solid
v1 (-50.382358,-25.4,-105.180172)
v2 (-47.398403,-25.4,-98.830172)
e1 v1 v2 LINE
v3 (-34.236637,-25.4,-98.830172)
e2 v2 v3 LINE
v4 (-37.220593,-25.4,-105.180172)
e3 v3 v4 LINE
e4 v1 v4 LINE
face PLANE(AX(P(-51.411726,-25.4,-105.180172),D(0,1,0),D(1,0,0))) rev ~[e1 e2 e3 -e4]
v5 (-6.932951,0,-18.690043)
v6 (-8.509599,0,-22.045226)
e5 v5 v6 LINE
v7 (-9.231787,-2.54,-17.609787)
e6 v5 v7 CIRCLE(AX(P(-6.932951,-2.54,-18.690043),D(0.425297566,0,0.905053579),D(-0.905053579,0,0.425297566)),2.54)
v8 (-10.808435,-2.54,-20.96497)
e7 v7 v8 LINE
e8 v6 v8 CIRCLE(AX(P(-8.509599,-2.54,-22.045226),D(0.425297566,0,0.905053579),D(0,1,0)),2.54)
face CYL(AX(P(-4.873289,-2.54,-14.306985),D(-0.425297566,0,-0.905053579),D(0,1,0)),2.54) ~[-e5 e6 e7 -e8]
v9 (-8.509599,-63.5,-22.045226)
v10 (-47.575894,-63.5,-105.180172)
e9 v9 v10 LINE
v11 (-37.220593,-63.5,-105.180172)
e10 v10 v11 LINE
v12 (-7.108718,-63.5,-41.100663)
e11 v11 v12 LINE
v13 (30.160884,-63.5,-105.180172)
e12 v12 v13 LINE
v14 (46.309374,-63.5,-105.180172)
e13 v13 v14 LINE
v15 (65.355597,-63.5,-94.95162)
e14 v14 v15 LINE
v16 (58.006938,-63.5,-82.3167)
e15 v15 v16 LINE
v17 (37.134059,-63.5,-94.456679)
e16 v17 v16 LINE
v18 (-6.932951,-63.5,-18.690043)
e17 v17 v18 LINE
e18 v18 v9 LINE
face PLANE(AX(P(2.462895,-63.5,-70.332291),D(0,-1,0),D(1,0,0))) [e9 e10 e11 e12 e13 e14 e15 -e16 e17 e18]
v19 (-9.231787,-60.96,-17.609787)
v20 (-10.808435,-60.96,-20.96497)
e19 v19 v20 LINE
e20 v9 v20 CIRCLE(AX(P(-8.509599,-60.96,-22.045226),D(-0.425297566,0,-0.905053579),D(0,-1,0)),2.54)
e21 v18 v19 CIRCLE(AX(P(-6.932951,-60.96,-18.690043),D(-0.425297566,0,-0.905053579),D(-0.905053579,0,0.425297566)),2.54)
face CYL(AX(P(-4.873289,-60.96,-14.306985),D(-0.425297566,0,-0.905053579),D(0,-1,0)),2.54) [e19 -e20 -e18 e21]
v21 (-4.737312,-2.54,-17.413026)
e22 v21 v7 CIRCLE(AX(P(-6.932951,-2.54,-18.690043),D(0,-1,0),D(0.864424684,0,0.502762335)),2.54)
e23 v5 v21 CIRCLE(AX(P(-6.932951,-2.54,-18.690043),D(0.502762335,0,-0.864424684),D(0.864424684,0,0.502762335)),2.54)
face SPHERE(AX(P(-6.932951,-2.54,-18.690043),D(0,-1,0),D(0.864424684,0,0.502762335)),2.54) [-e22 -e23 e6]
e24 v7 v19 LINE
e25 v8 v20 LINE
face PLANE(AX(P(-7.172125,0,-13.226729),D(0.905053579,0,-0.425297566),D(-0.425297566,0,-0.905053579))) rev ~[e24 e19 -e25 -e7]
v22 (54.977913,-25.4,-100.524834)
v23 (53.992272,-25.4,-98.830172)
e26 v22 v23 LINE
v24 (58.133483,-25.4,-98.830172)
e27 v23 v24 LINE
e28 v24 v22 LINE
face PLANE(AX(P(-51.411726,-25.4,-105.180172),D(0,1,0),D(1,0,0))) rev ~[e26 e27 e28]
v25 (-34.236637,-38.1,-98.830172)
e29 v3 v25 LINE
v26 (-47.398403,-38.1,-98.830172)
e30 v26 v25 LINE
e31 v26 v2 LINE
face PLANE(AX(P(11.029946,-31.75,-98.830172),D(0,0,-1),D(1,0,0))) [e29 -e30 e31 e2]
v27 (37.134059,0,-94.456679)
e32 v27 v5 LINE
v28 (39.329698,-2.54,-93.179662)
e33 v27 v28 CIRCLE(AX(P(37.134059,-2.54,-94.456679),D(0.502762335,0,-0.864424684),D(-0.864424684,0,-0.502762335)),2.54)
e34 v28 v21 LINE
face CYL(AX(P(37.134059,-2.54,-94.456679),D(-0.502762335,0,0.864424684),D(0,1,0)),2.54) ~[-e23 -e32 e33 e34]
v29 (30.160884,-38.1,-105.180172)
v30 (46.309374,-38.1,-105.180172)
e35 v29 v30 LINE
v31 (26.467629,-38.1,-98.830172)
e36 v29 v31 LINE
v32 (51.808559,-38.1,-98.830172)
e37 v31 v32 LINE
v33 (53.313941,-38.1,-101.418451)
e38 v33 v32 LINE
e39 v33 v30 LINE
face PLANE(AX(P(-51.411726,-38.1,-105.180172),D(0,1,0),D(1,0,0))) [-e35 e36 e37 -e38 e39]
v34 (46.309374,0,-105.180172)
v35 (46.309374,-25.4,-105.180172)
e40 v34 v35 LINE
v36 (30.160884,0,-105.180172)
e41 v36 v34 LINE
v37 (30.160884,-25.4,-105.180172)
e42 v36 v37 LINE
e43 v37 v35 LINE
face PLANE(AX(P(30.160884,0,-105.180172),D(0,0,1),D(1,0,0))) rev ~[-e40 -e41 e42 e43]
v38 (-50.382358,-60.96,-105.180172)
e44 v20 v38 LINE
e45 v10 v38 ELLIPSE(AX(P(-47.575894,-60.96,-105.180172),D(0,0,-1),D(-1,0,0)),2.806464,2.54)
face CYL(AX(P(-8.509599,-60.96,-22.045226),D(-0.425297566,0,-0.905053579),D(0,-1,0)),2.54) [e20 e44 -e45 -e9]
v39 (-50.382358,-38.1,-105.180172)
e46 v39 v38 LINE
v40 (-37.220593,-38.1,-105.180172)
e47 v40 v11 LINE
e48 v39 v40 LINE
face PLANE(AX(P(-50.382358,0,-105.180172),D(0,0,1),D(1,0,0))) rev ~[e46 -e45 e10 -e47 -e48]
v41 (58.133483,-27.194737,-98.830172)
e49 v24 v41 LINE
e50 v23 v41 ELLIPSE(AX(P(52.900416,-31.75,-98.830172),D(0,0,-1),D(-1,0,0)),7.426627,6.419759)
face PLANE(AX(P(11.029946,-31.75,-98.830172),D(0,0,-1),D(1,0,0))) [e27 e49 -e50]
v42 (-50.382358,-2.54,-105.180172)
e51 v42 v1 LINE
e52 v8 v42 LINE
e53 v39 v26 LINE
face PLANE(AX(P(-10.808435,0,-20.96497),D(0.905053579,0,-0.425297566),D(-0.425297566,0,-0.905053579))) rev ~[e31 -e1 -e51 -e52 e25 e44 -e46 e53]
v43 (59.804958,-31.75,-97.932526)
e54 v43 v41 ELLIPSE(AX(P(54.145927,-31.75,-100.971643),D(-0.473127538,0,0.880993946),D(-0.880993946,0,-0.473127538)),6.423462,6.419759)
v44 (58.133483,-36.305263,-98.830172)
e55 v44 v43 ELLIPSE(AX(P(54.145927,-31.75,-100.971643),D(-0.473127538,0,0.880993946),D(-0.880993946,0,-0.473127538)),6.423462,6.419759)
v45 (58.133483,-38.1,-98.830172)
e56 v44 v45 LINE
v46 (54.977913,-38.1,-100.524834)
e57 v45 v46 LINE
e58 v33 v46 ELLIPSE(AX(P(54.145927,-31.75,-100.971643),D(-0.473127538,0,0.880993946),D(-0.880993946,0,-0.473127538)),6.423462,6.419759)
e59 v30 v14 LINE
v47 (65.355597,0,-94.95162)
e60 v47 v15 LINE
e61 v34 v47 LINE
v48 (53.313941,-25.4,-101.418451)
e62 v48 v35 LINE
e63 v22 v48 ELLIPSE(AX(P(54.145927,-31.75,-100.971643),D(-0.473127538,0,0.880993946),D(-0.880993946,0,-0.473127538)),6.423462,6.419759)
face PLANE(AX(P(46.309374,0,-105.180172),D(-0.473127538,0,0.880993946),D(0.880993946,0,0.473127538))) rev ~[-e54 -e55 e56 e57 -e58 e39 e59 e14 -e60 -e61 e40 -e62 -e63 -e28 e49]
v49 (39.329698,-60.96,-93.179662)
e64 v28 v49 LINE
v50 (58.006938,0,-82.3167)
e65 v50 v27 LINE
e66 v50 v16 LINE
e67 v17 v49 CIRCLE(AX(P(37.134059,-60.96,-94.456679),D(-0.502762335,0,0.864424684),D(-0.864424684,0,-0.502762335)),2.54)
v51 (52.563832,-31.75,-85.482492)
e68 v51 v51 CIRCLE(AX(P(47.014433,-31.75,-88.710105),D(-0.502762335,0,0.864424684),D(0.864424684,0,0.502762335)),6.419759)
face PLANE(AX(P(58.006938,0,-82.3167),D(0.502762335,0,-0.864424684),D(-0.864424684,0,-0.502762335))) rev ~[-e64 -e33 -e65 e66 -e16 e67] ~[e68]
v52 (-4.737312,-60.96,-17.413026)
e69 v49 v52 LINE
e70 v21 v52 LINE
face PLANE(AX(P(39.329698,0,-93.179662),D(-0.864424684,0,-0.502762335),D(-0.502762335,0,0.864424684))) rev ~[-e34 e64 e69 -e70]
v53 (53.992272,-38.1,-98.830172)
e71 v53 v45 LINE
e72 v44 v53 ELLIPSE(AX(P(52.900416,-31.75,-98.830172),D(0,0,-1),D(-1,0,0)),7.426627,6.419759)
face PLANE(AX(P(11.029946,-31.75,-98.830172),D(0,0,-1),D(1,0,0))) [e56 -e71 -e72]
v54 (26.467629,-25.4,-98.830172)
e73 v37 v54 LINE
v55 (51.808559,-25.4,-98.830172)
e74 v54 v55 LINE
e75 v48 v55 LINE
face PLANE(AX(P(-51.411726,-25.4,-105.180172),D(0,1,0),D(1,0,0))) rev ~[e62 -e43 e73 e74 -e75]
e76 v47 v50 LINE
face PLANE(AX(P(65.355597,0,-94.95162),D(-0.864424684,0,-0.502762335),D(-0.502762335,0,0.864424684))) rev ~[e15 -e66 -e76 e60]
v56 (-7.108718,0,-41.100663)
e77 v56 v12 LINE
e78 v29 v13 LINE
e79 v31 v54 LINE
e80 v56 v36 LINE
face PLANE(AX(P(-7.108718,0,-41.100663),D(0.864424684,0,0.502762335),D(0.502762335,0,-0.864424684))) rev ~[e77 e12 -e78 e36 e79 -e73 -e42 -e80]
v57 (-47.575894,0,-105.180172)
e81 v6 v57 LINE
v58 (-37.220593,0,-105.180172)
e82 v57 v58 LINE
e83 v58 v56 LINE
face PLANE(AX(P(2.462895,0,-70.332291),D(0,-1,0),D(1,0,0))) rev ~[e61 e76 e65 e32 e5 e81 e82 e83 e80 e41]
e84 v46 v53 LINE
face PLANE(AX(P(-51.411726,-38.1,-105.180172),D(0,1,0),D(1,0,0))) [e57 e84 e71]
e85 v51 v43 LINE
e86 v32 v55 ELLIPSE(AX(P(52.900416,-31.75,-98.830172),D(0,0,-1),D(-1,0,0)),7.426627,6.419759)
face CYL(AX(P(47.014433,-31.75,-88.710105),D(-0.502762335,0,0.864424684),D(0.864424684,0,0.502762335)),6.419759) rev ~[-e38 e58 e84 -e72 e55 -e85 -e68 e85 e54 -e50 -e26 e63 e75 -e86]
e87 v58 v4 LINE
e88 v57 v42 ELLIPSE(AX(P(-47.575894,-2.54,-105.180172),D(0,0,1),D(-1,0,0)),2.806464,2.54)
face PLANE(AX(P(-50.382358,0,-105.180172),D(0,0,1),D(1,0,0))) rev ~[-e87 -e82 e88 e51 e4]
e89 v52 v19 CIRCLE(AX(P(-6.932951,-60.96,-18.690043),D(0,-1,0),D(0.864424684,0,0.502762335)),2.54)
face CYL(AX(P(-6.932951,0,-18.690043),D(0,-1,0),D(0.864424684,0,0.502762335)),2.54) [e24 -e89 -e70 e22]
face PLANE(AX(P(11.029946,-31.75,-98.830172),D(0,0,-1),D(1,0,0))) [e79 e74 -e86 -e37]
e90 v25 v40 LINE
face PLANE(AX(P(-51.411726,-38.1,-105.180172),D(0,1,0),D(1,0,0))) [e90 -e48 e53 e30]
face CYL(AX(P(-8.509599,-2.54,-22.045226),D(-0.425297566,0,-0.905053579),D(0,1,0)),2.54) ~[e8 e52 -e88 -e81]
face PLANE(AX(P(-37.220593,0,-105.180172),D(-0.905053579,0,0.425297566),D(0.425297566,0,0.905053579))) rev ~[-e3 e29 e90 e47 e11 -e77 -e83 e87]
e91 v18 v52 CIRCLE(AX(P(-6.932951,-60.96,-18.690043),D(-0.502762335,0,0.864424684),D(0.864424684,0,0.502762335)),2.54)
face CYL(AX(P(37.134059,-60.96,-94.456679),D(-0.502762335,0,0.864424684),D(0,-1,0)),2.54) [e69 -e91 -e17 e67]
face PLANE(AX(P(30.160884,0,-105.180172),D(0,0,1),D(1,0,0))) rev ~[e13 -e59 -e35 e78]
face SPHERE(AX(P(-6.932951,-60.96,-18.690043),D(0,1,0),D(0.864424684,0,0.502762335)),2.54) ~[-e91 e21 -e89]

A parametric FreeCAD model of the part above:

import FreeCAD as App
import Part
import Sketcher
Q = App.Units.Quantity


def edges_at(feature, points):
    """Names of the edges that pass closest to the given points."""
    edges = feature.Shape.Edges
    near = lambda p: min(range(len(edges)), key=lambda i: edges[i].distToShape(Part.Vertex(*p))[0])
    return sorted({f"Edge{near(p) + 1}" for p in points})


def add_polygon(sketch, points):
    """Adds a closed chain of lines whose ends are joined by coincident constraints."""
    first, n = sketch.GeometryCount, len(points)
    for a, b in zip(points, points[1:] + points[:1]):
        sketch.addGeometry(Part.LineSegment(App.Vector(*a, 0), App.Vector(*b, 0)), False)
    for i in range(n):
        sketch.addConstraint(Sketcher.Constraint("Coincident", first + i, 2, first + (i + 1) % n, 1))

doc = App.newDocument("Part")
params = doc.addObject("Spreadsheet::Sheet", "Params")
for row, (alias, value) in enumerate([
    ("pad1_length", "2.5 in"),
    ("sketch3_height", "0.5 in"),
    ("pocket2_length", "0.25 in"),
    ("fillet_radius", "0.1 in"),
], start=1):
    params.set(f"A{row}", alias)
    params.set(f"B{row}", "=" + value)
    params.setAlias(f"B{row}", alias)

body = doc.addObject("PartDesign::Body", "Body")

# Sketch on XZ plane
sketch1 = doc.addObject("Sketcher::SketchObject", "Sketch")
body.addObject(sketch1)
sketch1.AttachmentSupport = (doc.XZ_Plane, [""])
sketch1.MapMode = "FlatFace"
add_polygon(sketch1, [(58, -82), (39, -93), (-7, -13), (-11, -21), (-50, -105), (-37, -105), (-7, -41), (30, -105), (46, -105), (65, -95)])  # lines 0-9
sketch1.addConstraint(Sketcher.Constraint("Horizontal", 4))
sketch1.addConstraint(Sketcher.Constraint("Horizontal", 7))
sketch1.addConstraint(Sketcher.Constraint("Perpendicular", 0, 1))
sketch1.addConstraint(Sketcher.Constraint("Parallel", 2, 3))
sketch1.addConstraint(Sketcher.Constraint("Parallel", 3, 5))
sketch1.addConstraint(Sketcher.Constraint("Parallel", 1, 6))
sketch1.addConstraint(Sketcher.Constraint("Parallel", 6, 9))
sketch1.addConstraint(Sketcher.Constraint("Horizontal", 4, 2, 6, 2))
sketch1.addConstraint(Sketcher.Constraint("DistanceX", 7, 1, 7, 2, 16.14849))
sketch1.addConstraint(Sketcher.Constraint("DistanceY", 9, 2, -1, 1, 82.3167))
sketch1.addConstraint(Sketcher.Constraint("DistanceY", 0, 2, 5, 2, 52.079))
sketch1.addConstraint(Sketcher.Constraint("DistanceX", 0, 2, 8, 2, 26.025899))
sketch1.addConstraint(Sketcher.Constraint("DistanceX", 4, 1, 4, 2, 13.161765))
sketch1.addConstraint(Sketcher.Constraint("DistanceY", 1, 2, -1, 1, 13.226729))
sketch1.addConstraint(Sketcher.Constraint("DistanceY", 2, 2, -1, 1, 20.96497))
sketch1.addConstraint(Sketcher.Constraint("DistanceX", 5, 2, -1, 1, 7.108718))
sketch1.addConstraint(Sketcher.Constraint("DistanceY", 8, 2, -1, 1, 94.95162))
sketch1.addConstraint(Sketcher.Constraint("DistanceX", -1, 1, 9, 2, 58.006938))
sketch1.addConstraint(Sketcher.Constraint("DistanceX", 2, 2, 1, 2, 3.63631))
sketch1.addConstraint(Sketcher.Constraint("DistanceY", 3, 2, 0, 2, 12.00051))
pad1 = doc.addObject("PartDesign::Pad", "Pad")
body.addObject(pad1)
pad1.Profile = sketch1
pad1.setExpression("Length", "Params.pad1_length")

# Sketch on an angled plane
sketch2 = doc.addObject("Sketcher::SketchObject", "Sketch001")
body.addObject(sketch2)
sketch2.Placement = App.Placement(App.Vector(50.437264, 0, -86.719336), App.Rotation(App.Vector(0.864424684, 0, 0.502762335), App.Vector(0, 1, 0), App.Vector(-0.502762335, 0, 0.864424684), "ZXY"))
sketch2.addGeometry(Part.Circle(App.Vector(-4, -32, 0), App.Vector(0, 0, 1), 6), False)
sketch2.addConstraint(Sketcher.Constraint("DistanceY", 0, 3, -1, 1, Q("1.25 in")))
sketch2.addConstraint(Sketcher.Constraint("Diameter", 0, 12.839519))
sketch2.addConstraint(Sketcher.Constraint("DistanceX", 0, 3, -1, 1, 3.959663))
pocket1 = doc.addObject("PartDesign::Pocket", "Pocket")
body.addObject(pocket1)
pocket1.Profile = sketch2
pocket1.Type = "ThroughAll"

# Sketch on XY plane
sketch3 = doc.addObject("Sketcher::SketchObject", "Sketch002")
body.addObject(sketch3)
sketch3.AttachmentSupport = (doc.XY_Plane, [""])
sketch3.MapMode = "FlatFace"
sketch3.AttachmentOffset = App.Placement(App.Vector(0, 0, -105.180172), App.Rotation())
add_polygon(sketch3, [(-51, -38), (-51, -25), (73, -25), (73, -38)])  # lines 0-3
sketch3.addConstraint(Sketcher.Constraint("Vertical", 0))
sketch3.addConstraint(Sketcher.Constraint("Horizontal", 1))
sketch3.addConstraint(Sketcher.Constraint("Vertical", 2))
sketch3.addConstraint(Sketcher.Constraint("Horizontal", 3))
sketch3.addConstraint(Sketcher.Constraint("DistanceY", 0, 1, 0, 2, Q("0.5 in")))
sketch3.addConstraint(Sketcher.Constraint("DistanceY", 0, 2, -1, 1, Q("1 in")))
sketch3.addConstraint(Sketcher.Constraint("DistanceX", 1, 1, 1, 2, 124.883344))
sketch3.addConstraint(Sketcher.Constraint("DistanceX", 0, 2, -1, 1, 51.411726))
sketch3.setExpression("Constraints[8]", "Params.sketch3_height")
pocket2 = doc.addObject("PartDesign::Pocket", "Pocket001")
body.addObject(pocket2)
pocket2.Profile = sketch3
pocket2.setExpression("Length", "Params.pocket2_length")
pocket2.Reversed = True
doc.recompute()

fillet = doc.addObject("PartDesign::Fillet", "Fillet")
body.addObject(fillet)
fillet.Base = (pocket2, edges_at(pocket2, [
    (-7.172, -31.75, -13.227),
    (16.079, -63.5, -53.203),
    (16.079, 0, -53.203),
    (-30.595, -63.5, -63.073),
    (-30.595, 0, -63.073),
]))
fillet.setExpression("Radius", "Params.fillet_radius")

doc.recompute()
